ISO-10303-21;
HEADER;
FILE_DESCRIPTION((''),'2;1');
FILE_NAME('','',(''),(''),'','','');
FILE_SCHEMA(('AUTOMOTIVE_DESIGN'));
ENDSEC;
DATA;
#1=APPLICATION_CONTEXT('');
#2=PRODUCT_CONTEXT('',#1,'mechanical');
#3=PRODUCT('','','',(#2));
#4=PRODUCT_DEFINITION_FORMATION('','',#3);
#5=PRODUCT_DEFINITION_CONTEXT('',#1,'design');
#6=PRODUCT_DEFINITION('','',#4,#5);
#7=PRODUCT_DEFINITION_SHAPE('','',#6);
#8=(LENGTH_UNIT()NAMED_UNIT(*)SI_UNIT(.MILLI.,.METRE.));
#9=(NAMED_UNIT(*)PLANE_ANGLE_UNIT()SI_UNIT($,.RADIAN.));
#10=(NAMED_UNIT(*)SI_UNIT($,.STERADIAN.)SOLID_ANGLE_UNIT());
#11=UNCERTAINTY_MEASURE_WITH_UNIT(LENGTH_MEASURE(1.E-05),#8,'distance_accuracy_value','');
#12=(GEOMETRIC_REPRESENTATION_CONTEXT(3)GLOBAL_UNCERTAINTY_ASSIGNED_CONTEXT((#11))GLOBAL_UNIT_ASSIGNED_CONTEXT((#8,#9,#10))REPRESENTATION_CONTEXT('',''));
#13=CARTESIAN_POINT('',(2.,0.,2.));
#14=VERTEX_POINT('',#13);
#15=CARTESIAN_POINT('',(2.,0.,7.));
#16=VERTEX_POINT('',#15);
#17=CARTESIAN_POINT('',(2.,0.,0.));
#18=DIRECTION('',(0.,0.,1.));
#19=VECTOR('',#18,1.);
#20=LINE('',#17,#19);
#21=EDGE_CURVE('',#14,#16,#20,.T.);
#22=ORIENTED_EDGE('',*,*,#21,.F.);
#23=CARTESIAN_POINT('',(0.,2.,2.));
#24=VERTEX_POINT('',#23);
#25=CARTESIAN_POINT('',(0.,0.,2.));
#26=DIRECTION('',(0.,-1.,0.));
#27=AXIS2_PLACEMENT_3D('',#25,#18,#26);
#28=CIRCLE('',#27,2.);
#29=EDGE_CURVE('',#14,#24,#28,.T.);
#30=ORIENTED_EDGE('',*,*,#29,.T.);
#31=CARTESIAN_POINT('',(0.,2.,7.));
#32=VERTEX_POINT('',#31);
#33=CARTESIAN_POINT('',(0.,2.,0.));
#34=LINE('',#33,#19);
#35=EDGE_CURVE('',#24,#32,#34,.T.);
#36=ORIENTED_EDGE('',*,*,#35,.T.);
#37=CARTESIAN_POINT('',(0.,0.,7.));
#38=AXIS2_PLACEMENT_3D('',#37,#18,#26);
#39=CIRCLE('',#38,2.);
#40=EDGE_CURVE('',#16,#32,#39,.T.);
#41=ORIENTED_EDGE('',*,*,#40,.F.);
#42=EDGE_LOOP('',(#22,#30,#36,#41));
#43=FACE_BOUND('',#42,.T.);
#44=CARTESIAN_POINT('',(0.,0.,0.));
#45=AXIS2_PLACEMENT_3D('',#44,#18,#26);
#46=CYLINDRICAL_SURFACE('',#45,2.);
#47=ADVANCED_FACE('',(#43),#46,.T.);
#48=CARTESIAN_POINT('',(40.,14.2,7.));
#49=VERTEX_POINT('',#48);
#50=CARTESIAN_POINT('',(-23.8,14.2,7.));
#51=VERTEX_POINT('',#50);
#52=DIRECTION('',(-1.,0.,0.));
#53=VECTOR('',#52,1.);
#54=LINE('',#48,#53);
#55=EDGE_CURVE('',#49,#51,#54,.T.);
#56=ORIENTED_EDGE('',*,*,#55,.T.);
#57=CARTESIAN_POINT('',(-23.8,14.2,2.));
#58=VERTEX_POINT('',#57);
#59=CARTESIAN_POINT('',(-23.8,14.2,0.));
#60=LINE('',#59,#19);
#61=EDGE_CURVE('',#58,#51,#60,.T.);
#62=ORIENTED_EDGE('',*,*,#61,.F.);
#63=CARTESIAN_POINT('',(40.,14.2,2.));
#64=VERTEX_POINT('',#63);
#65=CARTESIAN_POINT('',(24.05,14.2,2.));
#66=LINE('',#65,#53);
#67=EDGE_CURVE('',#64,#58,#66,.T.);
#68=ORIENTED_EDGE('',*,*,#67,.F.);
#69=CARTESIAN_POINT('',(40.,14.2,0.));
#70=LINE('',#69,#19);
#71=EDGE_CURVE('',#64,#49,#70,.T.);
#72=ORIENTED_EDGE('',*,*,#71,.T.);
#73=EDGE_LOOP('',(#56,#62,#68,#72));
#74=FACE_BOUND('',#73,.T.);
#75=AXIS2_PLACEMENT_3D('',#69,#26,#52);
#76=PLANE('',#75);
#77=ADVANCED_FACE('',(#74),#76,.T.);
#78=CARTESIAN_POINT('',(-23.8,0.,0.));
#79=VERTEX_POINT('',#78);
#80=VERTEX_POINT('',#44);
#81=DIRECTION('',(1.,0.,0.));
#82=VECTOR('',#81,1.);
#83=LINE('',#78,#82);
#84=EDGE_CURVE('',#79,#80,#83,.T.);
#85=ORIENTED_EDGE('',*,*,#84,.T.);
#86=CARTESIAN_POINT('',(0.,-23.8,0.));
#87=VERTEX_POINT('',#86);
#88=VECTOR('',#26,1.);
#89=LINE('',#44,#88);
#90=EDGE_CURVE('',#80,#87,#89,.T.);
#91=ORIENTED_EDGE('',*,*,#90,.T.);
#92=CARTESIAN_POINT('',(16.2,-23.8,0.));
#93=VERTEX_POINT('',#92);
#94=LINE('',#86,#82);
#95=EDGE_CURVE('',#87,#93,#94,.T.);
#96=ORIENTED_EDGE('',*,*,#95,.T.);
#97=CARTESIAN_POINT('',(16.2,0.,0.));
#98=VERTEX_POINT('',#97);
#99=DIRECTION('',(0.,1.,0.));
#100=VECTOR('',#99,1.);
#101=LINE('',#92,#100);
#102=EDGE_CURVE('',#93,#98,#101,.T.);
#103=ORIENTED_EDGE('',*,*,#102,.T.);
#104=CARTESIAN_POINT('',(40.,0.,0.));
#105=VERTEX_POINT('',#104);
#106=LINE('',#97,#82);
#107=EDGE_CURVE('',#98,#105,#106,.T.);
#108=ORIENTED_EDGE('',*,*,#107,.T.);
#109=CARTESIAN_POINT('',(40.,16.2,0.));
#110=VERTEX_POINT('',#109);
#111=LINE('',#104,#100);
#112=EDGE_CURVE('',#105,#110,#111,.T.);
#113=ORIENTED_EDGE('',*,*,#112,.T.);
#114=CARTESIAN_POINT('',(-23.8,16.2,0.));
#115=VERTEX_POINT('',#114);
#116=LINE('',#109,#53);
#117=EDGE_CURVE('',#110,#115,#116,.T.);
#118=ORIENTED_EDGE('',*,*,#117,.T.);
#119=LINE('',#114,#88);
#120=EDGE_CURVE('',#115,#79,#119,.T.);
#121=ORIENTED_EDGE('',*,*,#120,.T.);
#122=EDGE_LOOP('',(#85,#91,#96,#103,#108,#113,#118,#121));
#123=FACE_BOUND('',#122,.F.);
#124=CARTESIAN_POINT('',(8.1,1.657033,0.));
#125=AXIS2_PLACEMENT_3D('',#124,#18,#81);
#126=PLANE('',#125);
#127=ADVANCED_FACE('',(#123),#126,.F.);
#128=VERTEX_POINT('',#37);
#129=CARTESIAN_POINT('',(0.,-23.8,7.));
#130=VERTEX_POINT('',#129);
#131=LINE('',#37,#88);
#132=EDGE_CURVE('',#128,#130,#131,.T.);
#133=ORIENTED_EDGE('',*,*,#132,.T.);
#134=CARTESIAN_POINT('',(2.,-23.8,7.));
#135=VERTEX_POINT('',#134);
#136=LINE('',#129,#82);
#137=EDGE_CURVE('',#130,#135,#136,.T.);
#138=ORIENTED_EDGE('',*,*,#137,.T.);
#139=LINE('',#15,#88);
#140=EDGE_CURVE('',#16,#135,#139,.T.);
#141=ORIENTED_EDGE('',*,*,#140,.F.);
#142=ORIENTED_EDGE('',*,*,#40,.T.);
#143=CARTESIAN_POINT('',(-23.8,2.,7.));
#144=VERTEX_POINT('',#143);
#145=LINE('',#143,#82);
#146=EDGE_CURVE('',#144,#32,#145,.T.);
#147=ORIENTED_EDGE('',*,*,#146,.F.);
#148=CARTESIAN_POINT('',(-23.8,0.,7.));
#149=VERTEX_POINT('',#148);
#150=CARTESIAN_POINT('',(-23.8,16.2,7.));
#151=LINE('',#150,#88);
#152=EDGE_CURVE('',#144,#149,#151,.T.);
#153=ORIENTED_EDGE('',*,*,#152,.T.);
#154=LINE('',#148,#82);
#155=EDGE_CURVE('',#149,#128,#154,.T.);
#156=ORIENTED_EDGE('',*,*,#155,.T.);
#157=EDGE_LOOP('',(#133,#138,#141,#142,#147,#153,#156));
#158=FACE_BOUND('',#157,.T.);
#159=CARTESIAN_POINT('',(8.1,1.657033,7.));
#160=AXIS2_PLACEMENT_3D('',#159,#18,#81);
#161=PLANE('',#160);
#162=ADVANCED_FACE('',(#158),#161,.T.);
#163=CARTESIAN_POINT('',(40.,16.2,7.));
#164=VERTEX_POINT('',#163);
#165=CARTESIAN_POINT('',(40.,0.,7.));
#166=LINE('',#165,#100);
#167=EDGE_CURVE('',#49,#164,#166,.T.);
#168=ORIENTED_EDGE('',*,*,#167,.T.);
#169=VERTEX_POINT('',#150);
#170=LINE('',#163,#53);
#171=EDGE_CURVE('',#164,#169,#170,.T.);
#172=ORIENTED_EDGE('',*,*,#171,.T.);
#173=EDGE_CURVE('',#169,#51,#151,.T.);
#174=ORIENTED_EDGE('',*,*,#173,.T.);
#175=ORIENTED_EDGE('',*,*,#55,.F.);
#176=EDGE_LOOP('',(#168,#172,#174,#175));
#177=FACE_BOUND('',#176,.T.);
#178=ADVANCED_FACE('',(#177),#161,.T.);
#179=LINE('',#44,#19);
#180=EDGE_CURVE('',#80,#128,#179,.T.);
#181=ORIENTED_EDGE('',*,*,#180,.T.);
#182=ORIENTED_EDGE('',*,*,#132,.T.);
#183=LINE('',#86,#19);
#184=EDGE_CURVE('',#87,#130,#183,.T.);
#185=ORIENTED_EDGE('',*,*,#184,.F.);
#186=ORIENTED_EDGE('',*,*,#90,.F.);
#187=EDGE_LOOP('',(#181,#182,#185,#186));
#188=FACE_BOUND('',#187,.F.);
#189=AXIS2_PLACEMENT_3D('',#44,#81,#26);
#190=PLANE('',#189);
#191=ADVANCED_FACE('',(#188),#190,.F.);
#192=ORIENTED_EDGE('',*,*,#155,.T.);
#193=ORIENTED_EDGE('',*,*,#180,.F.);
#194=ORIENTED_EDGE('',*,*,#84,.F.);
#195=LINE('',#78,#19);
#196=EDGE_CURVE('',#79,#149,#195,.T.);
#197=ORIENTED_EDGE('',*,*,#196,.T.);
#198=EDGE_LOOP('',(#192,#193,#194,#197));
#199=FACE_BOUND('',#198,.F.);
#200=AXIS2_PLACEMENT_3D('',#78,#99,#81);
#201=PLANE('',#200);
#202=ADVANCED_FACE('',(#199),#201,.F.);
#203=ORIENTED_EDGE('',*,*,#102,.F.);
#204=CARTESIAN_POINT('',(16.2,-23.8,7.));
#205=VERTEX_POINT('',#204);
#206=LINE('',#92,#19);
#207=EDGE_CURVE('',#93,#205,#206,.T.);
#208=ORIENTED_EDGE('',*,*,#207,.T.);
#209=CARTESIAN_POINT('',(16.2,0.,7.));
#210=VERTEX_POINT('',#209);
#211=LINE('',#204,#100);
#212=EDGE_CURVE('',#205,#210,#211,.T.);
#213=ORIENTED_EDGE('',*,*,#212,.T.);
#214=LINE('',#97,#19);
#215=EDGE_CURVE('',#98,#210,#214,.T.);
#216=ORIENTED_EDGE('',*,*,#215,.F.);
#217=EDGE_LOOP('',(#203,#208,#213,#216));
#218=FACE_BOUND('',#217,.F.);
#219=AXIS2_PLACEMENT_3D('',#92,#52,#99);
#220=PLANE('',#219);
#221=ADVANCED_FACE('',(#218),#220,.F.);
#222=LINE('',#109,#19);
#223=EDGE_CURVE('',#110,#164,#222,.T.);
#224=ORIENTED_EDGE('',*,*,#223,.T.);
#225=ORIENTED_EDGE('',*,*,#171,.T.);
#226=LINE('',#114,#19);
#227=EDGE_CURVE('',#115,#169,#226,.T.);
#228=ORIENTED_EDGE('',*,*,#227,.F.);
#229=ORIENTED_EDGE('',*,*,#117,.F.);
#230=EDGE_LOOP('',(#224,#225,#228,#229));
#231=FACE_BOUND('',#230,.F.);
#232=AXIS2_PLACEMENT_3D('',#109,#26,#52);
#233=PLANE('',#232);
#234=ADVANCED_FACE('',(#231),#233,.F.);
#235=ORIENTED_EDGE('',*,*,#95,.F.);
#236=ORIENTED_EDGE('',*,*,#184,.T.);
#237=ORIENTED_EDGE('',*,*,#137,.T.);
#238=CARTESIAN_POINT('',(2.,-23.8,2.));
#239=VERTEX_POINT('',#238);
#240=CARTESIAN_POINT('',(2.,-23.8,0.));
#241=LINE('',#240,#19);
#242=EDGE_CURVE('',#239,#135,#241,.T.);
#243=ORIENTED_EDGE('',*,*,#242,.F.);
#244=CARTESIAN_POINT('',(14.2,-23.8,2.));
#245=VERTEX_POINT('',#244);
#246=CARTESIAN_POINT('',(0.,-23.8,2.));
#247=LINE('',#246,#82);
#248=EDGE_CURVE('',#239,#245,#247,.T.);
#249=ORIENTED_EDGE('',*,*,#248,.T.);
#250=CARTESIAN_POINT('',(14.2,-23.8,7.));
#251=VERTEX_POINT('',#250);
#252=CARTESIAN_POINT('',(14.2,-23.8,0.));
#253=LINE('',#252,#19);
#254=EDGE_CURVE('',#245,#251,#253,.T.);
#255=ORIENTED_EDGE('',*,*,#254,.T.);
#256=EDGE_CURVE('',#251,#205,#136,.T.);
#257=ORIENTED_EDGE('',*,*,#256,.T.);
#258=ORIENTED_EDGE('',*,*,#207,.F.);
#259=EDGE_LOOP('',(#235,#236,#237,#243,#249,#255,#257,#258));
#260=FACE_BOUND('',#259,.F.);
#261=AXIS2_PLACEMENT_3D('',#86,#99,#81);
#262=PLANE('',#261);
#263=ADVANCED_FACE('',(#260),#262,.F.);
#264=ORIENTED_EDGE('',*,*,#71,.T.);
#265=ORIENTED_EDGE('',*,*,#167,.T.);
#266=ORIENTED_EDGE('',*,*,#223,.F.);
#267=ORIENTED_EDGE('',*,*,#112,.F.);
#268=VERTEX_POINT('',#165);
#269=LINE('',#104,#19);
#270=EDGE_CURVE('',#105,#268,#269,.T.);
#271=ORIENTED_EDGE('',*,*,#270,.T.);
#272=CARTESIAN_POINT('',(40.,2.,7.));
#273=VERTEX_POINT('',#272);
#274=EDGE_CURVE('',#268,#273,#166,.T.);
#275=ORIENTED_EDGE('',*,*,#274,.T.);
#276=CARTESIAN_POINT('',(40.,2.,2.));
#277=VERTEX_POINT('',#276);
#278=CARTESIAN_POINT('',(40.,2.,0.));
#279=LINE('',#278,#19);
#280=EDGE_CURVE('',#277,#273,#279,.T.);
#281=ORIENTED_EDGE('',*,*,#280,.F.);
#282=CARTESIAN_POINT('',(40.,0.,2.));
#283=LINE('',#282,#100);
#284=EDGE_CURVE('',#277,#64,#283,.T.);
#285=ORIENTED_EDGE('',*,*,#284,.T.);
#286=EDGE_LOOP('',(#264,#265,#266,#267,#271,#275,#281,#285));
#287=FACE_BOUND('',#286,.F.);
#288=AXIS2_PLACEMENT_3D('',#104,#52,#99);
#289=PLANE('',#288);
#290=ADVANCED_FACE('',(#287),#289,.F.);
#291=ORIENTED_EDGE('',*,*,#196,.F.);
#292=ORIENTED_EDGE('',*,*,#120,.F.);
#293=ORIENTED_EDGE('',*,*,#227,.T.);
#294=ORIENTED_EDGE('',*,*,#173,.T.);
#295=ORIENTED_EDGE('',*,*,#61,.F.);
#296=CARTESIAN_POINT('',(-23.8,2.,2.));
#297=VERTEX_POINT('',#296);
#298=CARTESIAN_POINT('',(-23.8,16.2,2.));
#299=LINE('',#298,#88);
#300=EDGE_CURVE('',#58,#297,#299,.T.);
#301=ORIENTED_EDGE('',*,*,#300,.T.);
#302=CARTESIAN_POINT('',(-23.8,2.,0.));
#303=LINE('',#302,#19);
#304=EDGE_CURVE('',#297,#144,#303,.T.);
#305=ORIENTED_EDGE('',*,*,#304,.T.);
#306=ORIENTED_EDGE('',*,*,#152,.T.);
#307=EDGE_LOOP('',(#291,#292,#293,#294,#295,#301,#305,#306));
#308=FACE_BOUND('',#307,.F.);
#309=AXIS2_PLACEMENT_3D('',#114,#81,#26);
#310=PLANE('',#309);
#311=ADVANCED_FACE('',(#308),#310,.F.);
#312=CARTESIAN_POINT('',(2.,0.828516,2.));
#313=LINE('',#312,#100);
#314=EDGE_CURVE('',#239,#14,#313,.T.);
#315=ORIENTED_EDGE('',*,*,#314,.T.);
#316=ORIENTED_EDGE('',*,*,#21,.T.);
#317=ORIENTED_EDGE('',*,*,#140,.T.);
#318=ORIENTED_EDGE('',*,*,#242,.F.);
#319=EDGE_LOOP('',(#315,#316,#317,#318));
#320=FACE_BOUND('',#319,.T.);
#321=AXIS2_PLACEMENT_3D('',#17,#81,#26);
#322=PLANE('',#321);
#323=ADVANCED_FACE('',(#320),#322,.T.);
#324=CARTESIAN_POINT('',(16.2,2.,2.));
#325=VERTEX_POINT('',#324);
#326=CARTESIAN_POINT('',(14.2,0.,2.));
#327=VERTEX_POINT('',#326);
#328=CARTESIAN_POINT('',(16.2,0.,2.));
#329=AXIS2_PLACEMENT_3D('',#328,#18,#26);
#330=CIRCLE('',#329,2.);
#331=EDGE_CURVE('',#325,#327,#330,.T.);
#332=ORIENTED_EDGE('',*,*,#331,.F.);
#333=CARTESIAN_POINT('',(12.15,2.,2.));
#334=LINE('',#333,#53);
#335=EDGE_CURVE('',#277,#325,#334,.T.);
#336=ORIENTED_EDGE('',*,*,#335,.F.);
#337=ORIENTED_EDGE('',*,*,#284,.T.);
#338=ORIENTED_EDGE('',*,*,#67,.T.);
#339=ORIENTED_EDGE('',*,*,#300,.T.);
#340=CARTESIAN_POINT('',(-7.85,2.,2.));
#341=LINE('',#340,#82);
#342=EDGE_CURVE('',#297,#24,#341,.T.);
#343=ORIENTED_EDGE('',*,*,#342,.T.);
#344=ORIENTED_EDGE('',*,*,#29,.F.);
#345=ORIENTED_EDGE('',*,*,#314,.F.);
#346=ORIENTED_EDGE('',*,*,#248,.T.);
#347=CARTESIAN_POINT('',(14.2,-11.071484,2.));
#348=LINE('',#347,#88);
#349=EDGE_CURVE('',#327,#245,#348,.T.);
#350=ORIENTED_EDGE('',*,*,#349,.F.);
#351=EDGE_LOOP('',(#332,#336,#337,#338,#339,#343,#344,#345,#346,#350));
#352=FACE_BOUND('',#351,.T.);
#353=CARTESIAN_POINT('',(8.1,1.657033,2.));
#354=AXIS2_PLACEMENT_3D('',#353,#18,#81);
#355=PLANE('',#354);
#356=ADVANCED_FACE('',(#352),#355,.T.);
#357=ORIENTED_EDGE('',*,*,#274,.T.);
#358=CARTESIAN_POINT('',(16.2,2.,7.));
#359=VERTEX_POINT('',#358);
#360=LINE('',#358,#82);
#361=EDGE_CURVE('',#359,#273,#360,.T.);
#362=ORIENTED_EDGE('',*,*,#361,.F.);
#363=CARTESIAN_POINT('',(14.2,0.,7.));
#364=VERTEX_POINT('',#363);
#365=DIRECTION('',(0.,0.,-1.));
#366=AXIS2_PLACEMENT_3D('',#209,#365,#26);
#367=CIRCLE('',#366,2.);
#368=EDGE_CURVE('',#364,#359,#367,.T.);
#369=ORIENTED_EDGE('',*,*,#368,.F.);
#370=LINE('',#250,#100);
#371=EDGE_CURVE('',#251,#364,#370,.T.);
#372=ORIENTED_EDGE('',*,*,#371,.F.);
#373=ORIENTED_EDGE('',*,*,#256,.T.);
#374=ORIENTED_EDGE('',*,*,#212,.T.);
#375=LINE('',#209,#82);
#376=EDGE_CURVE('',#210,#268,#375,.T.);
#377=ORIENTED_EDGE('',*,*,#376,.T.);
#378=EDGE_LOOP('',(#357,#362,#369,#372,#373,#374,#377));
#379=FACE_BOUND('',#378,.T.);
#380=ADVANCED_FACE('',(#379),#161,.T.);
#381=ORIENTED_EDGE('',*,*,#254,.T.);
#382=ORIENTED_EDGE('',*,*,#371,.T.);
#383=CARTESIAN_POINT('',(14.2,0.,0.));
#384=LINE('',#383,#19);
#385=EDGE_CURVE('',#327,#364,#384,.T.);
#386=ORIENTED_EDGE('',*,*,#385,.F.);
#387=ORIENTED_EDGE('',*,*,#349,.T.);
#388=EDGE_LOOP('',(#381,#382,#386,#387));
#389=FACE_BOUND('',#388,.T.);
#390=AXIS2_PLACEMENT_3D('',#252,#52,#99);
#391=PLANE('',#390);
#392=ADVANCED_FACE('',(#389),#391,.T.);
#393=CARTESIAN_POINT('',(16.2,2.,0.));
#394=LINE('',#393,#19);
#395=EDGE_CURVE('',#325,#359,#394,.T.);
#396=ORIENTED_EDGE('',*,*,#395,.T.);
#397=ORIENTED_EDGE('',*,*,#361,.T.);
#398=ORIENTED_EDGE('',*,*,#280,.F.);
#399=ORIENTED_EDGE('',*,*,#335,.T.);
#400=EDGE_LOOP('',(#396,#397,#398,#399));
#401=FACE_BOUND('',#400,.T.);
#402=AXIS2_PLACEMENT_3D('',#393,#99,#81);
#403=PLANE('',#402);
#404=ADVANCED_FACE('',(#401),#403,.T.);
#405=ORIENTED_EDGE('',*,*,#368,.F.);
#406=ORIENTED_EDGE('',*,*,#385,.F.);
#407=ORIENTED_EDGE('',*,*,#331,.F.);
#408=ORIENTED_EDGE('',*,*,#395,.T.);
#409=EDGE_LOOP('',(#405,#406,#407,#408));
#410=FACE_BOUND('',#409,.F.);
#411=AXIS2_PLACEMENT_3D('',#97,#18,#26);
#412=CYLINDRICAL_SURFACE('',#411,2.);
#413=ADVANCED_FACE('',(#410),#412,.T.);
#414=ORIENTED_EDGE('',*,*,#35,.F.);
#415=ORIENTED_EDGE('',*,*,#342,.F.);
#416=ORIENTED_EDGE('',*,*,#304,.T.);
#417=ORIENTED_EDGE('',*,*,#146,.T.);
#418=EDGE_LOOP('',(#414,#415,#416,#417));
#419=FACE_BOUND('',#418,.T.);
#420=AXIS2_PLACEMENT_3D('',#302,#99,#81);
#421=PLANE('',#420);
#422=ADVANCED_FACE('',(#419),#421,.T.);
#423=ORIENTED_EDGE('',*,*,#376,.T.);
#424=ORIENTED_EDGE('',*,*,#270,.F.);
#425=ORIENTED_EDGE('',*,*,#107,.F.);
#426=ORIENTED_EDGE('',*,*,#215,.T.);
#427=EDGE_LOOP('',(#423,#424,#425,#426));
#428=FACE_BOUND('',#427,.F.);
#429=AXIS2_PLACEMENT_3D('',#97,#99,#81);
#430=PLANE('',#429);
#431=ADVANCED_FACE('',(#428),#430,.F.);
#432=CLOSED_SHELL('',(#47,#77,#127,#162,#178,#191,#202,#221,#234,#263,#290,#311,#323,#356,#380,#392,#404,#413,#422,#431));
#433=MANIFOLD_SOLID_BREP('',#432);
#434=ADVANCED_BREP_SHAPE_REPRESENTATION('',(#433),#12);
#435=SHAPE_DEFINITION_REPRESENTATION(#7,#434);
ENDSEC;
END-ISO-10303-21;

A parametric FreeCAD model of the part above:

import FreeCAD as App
import Part
import Sketcher

V = App.Vector


def faces_at(feature, points):
    """Names of the faces that lie closest to the given points."""
    faces = feature.Shape.Faces
    near = lambda p: min(range(len(faces)), key=lambda i: faces[i].distToShape(Part.Vertex(*p))[0])
    return sorted({f"Face{near(p) + 1}" for p in points})


def add_polygon(sketch, points):
    """Adds a closed chain of lines whose ends are joined by coincident constraints."""
    first, n = sketch.GeometryCount, len(points)
    for a, b in zip(points, points[1:] + points[:1]):
        sketch.addGeometry(Part.LineSegment(App.Vector(*a, 0), App.Vector(*b, 0)), False)
    for i in range(n):
        sketch.addConstraint(Sketcher.Constraint("Coincident", first + i, 2, first + (i + 1) % n, 1))

doc = App.newDocument("Part")
params = doc.addObject("Spreadsheet::Sheet", "Params")
for row, (alias, value) in enumerate([
    ("sketch1_width", "16.2 mm"),
    ("sketch1_width2", "23.8 mm"),
    ("pad1_length", "7 mm"),
    ("thickness_wall", "2 mm"),
], start=1):
    params.set(f"A{row}", alias)
    params.set(f"B{row}", "=" + value)
    params.setAlias(f"B{row}", alias)

body = doc.addObject("PartDesign::Body", "Body")

# Sketch on XY plane
sketch1 = body.newObject("Sketcher::SketchObject", "Sketch")
sketch1.AttachmentSupport = (doc.getObject("XY_Plane"), [""])
sketch1.MapMode = "FlatFace"
add_polygon(sketch1, [(0, 0), (0, -23.8), (16.2, -23.8), (16.2, 0), (40, 0), (40, 16.2), (-23.8, 16.2), (-23.8, 0)])  # lines 0-7
sketch1.addConstraint(Sketcher.Constraint("Vertical", 0))
sketch1.addConstraint(Sketcher.Constraint("Horizontal", 1))
sketch1.addConstraint(Sketcher.Constraint("Vertical", 2))
sketch1.addConstraint(Sketcher.Constraint("Horizontal", 3))
sketch1.addConstraint(Sketcher.Constraint("Vertical", 4))
sketch1.addConstraint(Sketcher.Constraint("Horizontal", 5))
sketch1.addConstraint(Sketcher.Constraint("Vertical", 6))
sketch1.addConstraint(Sketcher.Constraint("Horizontal", 7))
sketch1.addConstraint(Sketcher.Constraint("Coincident", 7, 2, -1, 1))
sketch1.addConstraint(Sketcher.Constraint("PointOnObject", 2, 2, -1))
sketch1.addConstraint(Sketcher.Constraint("Equal", 3, 7))
sketch1.addConstraint(Sketcher.Constraint("Equal", 7, 0))
sketch1.addConstraint(Sketcher.Constraint("Equal", 1, 4))
sketch1.addConstraint(Sketcher.Constraint("DistanceX", 1, 1, 1, 2, 16.2))
sketch1.addConstraint(Sketcher.Constraint("DistanceX", 3, 1, 3, 2, 23.8))
sketch1.setExpression("Constraints[21]", "Params.sketch1_width")
sketch1.setExpression("Constraints[22]", "Params.sketch1_width2")
pad1 = body.newObject("PartDesign::Pad", "Pad")
pad1.Profile = sketch1
pad1.setExpression("Length", "Params.pad1_length")
doc.recompute()

thickness = body.newObject("PartDesign::Thickness", "Thickness")
thickness.Base = (pad1, faces_at(pad1, [
    (8.1, -3.8, 7),
    (8.1, -23.8, 3.5),
    (40, 8.1, 3.5),
    (-23.8, 8.1, 3.5),
]))
thickness.setExpression("Value", "Params.thickness_wall")
thickness.Reversed = True
thickness.Join = "Arc"

doc.recompute()
